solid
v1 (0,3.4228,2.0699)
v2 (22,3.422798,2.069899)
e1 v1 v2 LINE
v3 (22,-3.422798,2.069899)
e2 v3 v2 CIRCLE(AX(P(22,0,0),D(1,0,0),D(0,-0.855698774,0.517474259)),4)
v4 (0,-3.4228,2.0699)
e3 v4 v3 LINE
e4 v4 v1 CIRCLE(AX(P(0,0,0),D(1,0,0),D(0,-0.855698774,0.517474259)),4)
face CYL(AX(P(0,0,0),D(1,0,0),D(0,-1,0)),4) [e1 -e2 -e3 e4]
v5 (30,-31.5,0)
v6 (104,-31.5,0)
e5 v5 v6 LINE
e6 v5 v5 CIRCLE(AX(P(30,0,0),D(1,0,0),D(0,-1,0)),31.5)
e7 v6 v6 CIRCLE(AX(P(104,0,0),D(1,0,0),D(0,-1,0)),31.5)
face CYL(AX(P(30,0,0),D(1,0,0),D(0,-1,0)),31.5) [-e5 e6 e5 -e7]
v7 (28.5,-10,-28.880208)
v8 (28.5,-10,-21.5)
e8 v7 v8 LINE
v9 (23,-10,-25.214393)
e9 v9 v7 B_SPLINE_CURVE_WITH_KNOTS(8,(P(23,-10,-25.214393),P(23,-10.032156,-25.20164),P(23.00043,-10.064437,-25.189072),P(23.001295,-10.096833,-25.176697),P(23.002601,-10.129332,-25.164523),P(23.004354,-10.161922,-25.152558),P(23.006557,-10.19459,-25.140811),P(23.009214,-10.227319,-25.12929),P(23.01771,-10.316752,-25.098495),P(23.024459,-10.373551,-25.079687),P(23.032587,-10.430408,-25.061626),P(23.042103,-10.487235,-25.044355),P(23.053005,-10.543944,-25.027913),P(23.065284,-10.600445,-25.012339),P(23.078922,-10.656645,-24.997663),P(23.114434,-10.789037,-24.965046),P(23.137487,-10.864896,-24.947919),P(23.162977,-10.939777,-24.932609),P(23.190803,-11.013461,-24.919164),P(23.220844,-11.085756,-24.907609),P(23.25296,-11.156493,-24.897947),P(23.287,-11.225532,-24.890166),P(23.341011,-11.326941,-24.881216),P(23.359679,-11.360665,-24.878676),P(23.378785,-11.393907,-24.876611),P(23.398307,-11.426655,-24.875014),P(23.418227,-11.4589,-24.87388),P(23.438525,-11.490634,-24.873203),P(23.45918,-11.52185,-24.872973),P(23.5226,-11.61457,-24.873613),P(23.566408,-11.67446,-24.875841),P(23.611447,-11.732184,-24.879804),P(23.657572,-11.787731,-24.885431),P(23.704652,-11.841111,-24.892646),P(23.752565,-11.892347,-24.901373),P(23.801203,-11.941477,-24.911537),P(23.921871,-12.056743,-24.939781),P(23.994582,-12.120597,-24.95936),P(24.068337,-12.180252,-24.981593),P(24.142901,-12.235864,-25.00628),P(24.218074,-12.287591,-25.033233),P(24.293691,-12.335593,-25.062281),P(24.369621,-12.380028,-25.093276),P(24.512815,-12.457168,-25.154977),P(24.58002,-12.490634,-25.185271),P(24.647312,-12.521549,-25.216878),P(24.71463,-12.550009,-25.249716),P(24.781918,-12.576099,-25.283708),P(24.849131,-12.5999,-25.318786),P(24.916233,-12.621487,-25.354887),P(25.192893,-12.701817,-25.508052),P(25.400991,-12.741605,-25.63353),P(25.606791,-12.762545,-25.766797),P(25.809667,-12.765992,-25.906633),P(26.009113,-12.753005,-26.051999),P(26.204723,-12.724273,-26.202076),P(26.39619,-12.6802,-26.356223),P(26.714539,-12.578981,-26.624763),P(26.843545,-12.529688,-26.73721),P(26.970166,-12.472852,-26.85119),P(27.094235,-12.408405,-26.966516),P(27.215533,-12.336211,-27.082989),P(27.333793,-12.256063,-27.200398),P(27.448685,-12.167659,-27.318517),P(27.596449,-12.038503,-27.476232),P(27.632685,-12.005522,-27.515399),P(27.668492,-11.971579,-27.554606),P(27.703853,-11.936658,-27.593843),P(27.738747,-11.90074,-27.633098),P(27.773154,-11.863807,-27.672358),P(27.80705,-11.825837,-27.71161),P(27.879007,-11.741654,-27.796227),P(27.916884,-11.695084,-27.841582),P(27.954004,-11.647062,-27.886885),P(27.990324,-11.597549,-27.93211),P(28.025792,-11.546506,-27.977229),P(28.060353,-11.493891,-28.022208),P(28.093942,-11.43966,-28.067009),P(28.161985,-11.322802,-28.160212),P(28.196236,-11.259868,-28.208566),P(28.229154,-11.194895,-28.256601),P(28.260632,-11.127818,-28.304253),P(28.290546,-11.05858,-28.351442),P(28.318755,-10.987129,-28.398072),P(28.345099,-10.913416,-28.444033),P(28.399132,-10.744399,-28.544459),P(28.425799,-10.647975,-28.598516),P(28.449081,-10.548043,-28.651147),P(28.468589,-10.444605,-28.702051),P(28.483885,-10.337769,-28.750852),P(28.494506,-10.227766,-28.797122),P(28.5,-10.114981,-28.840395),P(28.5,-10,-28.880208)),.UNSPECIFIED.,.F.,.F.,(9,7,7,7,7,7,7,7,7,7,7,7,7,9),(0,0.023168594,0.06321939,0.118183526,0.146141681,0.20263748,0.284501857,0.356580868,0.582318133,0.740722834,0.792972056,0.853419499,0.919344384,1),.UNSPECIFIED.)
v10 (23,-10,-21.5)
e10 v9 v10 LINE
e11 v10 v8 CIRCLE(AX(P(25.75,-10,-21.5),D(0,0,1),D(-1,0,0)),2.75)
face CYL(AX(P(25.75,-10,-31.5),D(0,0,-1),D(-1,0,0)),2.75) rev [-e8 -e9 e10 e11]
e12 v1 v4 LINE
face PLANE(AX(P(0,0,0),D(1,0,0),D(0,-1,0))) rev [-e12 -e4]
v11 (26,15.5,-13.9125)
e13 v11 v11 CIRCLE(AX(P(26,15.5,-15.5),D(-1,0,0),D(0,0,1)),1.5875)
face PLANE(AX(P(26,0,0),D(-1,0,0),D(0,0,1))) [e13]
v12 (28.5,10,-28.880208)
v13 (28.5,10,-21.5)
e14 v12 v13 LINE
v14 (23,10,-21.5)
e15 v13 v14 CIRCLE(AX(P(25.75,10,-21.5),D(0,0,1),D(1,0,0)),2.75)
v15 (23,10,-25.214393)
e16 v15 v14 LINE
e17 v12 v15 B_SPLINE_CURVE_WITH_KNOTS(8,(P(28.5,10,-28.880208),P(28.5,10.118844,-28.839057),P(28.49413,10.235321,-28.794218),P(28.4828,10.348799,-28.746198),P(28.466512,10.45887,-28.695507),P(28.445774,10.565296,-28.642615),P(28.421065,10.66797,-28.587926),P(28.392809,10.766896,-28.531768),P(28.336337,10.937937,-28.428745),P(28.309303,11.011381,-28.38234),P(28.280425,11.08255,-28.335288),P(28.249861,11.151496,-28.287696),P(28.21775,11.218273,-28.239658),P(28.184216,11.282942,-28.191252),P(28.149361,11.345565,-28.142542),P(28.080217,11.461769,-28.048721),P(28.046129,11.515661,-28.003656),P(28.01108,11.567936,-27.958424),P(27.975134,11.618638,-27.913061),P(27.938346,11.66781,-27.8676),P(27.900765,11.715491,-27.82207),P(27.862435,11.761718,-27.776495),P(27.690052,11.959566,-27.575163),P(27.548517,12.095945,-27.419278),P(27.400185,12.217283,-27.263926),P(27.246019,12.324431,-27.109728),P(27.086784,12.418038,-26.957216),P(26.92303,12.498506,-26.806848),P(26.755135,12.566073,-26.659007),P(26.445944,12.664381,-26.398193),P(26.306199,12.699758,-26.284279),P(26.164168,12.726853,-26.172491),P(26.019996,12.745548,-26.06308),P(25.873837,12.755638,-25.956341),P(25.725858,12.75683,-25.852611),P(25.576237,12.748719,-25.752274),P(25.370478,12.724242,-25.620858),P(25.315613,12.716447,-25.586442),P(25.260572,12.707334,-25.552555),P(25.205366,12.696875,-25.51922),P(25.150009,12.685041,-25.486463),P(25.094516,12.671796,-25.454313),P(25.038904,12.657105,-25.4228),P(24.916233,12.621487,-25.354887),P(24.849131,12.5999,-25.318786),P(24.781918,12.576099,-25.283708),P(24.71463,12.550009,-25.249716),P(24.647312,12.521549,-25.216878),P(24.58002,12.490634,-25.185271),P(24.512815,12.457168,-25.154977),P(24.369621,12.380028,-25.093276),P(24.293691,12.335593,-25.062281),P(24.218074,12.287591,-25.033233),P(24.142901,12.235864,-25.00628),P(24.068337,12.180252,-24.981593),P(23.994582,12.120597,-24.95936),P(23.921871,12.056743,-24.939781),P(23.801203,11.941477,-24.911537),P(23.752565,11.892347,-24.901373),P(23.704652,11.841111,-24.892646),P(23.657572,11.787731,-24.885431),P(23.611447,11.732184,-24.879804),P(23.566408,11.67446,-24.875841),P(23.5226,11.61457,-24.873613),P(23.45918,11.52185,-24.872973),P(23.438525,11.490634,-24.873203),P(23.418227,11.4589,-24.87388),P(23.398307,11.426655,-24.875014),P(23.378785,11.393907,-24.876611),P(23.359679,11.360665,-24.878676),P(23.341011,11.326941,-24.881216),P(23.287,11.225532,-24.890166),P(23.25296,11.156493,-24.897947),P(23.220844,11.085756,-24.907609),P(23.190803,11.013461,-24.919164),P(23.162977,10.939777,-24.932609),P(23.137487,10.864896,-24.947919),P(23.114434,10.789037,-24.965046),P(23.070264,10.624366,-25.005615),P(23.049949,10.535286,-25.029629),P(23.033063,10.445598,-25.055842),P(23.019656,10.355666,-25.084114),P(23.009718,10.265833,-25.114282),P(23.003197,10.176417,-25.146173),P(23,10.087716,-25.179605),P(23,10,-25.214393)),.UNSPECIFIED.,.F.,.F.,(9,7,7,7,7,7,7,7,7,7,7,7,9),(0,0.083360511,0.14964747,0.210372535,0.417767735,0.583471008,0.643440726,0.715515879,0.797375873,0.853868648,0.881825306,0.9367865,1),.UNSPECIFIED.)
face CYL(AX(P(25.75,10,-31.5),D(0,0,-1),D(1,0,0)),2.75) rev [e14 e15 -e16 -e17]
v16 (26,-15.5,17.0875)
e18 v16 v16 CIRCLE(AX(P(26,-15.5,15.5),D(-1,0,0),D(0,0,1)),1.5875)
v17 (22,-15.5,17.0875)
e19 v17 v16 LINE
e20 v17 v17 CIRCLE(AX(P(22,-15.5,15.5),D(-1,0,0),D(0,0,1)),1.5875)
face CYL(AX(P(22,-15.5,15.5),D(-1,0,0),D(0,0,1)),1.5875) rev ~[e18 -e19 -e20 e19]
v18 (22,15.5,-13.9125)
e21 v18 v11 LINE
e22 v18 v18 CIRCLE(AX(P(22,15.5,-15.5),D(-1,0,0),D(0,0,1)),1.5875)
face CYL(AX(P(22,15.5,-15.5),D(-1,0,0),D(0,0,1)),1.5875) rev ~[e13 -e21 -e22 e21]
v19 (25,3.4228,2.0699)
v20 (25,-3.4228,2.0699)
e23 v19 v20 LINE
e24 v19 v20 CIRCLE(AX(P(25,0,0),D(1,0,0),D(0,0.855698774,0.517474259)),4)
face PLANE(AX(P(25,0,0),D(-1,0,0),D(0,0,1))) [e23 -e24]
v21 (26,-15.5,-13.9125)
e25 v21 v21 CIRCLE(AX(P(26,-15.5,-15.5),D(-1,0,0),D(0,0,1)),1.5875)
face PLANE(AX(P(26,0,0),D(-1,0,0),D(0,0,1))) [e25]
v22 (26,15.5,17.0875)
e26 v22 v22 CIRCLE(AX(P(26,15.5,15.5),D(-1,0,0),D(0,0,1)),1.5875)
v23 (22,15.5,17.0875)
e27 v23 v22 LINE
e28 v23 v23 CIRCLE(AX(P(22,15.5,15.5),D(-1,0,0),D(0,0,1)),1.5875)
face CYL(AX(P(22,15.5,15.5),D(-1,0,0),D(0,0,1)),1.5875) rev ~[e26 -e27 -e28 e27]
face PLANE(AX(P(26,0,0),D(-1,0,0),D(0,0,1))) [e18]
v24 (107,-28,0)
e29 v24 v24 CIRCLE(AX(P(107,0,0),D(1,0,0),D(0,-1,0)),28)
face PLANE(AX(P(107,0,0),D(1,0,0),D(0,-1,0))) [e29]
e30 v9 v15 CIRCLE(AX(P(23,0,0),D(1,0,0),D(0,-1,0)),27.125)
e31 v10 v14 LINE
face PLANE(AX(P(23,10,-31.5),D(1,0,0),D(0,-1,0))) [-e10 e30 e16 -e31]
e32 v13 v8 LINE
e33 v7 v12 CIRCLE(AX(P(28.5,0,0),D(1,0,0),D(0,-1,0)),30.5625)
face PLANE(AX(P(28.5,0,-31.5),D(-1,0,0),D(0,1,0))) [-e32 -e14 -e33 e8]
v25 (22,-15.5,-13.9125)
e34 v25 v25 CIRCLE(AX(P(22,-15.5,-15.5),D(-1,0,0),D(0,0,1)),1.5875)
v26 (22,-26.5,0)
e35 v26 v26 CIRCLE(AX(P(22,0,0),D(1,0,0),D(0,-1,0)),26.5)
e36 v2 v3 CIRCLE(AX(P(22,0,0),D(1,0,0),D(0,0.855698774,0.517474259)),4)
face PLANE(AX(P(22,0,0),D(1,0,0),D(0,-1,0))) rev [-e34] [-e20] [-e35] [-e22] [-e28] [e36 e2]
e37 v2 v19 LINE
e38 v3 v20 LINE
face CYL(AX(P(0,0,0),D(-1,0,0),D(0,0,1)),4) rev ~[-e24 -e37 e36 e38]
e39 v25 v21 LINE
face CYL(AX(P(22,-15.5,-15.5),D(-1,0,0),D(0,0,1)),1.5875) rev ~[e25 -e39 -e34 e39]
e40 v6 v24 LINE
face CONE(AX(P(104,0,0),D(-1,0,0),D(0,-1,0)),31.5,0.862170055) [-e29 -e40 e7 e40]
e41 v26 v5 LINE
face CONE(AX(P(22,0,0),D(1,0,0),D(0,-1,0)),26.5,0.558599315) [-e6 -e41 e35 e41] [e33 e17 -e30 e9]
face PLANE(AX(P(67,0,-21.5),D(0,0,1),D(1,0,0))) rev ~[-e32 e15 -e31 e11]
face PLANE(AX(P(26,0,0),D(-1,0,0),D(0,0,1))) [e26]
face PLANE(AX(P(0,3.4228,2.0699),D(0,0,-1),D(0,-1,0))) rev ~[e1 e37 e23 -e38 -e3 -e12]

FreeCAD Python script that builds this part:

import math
import FreeCAD as App
import Part
import Sketcher
from FreeCAD import Vector
Q = App.Units.Quantity

doc = App.newDocument("Part")
body = doc.addObject("PartDesign::Body", "Body")

sketch1 = body.newObject("Sketcher::SketchObject", "Sketch")
sketch1.AttachmentSupport = (doc.getObject("XY_Plane"), [""])
sketch1.MapMode = "FlatFace"
sketch1.addGeometry(Part.LineSegment(Vector(107, 0, 0), Vector(0, 0, 0)), False)
sketch1.addGeometry(Part.LineSegment(Vector(0, 0, 0), Vector(0, -4, 0)), False)
sketch1.addGeometry(Part.LineSegment(Vector(0, -4, 0), Vector(22, -4, 0)), False)
sketch1.addGeometry(Part.LineSegment(Vector(22, -4, 0), Vector(22, -26.5, 0)), False)
sketch1.addGeometry(Part.LineSegment(Vector(22, -26.5, 0), Vector(30, -31.5, 0)), False)
sketch1.addGeometry(Part.LineSegment(Vector(30, -31.5, 0), Vector(104, -31.5, 0)), False)
sketch1.addGeometry(Part.LineSegment(Vector(104, -31.5, 0), Vector(107, -28, 0)), False)
sketch1.addGeometry(Part.LineSegment(Vector(107, -28, 0), Vector(107, 0, 0)), False)
sketch1.addConstraint(Sketcher.Constraint("Coincident", 0, 2, 1, 1))
sketch1.addConstraint(Sketcher.Constraint("Coincident", 1, 2, 2, 1))
sketch1.addConstraint(Sketcher.Constraint("Coincident", 2, 2, 3, 1))
sketch1.addConstraint(Sketcher.Constraint("Coincident", 3, 2, 4, 1))
sketch1.addConstraint(Sketcher.Constraint("Coincident", 4, 2, 5, 1))
sketch1.addConstraint(Sketcher.Constraint("Coincident", 5, 2, 6, 1))
sketch1.addConstraint(Sketcher.Constraint("Coincident", 6, 2, 7, 1))
sketch1.addConstraint(Sketcher.Constraint("Coincident", 7, 2, 0, 1))
sketch1.addConstraint(Sketcher.Constraint("Horizontal", 0))
sketch1.addConstraint(Sketcher.Constraint("Vertical", 1))
sketch1.addConstraint(Sketcher.Constraint("Horizontal", 2))
sketch1.addConstraint(Sketcher.Constraint("Vertical", 3))
sketch1.addConstraint(Sketcher.Constraint("Horizontal", 5))
sketch1.addConstraint(Sketcher.Constraint("Vertical", 7))
sketch1.addConstraint(Sketcher.Constraint("Coincident", 0, 2, -1, 1))
sketch1.addConstraint(Sketcher.Constraint("DistanceX", 2, 1, 2, 2, Q("22 mm")))
sketch1.addConstraint(Sketcher.Constraint("DistanceX", 5, 1, 5, 2, Q("74 mm")))
sketch1.addConstraint(Sketcher.Constraint("DistanceY", 1, 2, 1, 1, Q("4 mm")))
sketch1.addConstraint(Sketcher.Constraint("DistanceY", 7, 1, 7, 2, Q("28 mm")))
sketch1.addConstraint(Sketcher.Constraint("DistanceY", 3, 2, 3, 1, Q("22.5 mm")))
sketch1.addConstraint(Sketcher.Constraint("DistanceX", 3, 2, 4, 2, Q("8 mm")))
sketch1.addConstraint(Sketcher.Constraint("DistanceX", 3, 2, 6, 2, Q("85 mm")))
sketch1.addConstraint(Sketcher.Constraint("DistanceY", 4, 2, -1, 1, Q("31.5 mm")))
revolution = body.newObject("PartDesign::Revolution", "Revolution")
revolution.Profile = sketch1
revolution.ReferenceAxis = (sketch1, ["H_Axis"])
revolution.Angle = 360

sketch2 = body.newObject("Sketcher::SketchObject", "Sketch001")
sketch2.AttachmentSupport = (doc.getObject("YZ_Plane"), [""])
sketch2.MapMode = "FlatFace"
sketch2.addGeometry(Part.ArcOfCircle(Part.Circle(Vector(0, 0, 0), Vector(0, 0, 1), 4), math.radians(31.162982), math.radians(148.837018)), False)
sketch2.addGeometry(Part.LineSegment(Vector(-3.4228, 2.0699, 0), Vector(3.4228, 2.0699, 0)), False)
sketch2.addConstraint(Sketcher.Constraint("Coincident", 0, 1, 1, 2))
sketch2.addConstraint(Sketcher.Constraint("Coincident", 1, 1, 0, 2))
sketch2.addConstraint(Sketcher.Constraint("Horizontal", 1))
sketch2.addConstraint(Sketcher.Constraint("Coincident", 0, 3, -1, 1))
sketch2.addConstraint(Sketcher.Constraint("Radius", 0, Q("4 mm")))
sketch2.addConstraint(Sketcher.Constraint("DistanceY", -1, 1, 0, 1, Q("2.07 mm")))
pocket1 = body.newObject("PartDesign::Pocket", "Pocket")
pocket1.Profile = sketch2
pocket1.Length = 25
pocket1.Reversed = True

sketch3 = body.newObject("Sketcher::SketchObject", "Sketch002")
sketch3.AttachmentSupport = (doc.getObject("YZ_Plane"), [""])
sketch3.MapMode = "FlatFace"
sketch3.AttachmentOffset = App.Placement(Vector(0, 0, 22), App.Rotation())
sketch3.addGeometry(Part.Circle(Vector(15.5, 15.5, 0), Vector(0, 0, 1), 1.5875), False)
sketch3.addGeometry(Part.Circle(Vector(-15.5, 15.5, 0), Vector(0, 0, 1), 1.5875), False)
sketch3.addGeometry(Part.Circle(Vector(15.5, -15.5, 0), Vector(0, 0, 1), 1.5875), False)
sketch3.addGeometry(Part.Circle(Vector(-15.5, -15.5, 0), Vector(0, 0, 1), 1.5875), False)
sketch3.addConstraint(Sketcher.Constraint("Equal", 0, 1))
sketch3.addConstraint(Sketcher.Constraint("Equal", 1, 2))
sketch3.addConstraint(Sketcher.Constraint("Equal", 2, 3))
sketch3.addConstraint(Sketcher.Constraint("Symmetric", 1, 3, 2, 3, -1, 1))
sketch3.addConstraint(Sketcher.Constraint("Symmetric", 0, 3, 3, 3, -1, 1))
sketch3.addConstraint(Sketcher.Constraint("Symmetric", 0, 3, 1, 3, -2))
sketch3.addConstraint(Sketcher.Constraint("Diameter", 0, Q("3.175 mm")))
sketch3.addConstraint(Sketcher.Constraint("DistanceX", 1, 3, 0, 3, Q("31 mm")))
sketch3.addConstraint(Sketcher.Constraint("DistanceY", 2, 3, 0, 3, Q("31 mm")))
pocket2 = body.newObject("PartDesign::Pocket", "Pocket001")
pocket2.Profile = sketch3
pocket2.Length = 4
pocket2.Reversed = True

sketch4 = body.newObject("Sketcher::SketchObject", "Sketch003")
sketch4.AttachmentSupport = (doc.getObject("XY_Plane"), [""])
sketch4.MapMode = "FlatFace"
sketch4.AttachmentOffset = App.Placement(Vector(0, 0, -31.5), App.Rotation())
sketch4.addGeometry(Part.ArcOfCircle(Part.Circle(Vector(25.75, 10, 0), Vector(0, 0, 1), 2.75), math.radians(0), math.radians(180)), False)
sketch4.addGeometry(Part.LineSegment(Vector(23, 10, 0), Vector(23, -10, 0)), False)
sketch4.addGeometry(Part.ArcOfCircle(Part.Circle(Vector(25.75, -10, 0), Vector(0, 0, 1), 2.75), math.radians(180), math.radians(360)), False)
sketch4.addGeometry(Part.LineSegment(Vector(28.5, -10, 0), Vector(28.5, 10, 0)), False)
sketch4.addConstraint(Sketcher.Constraint("Tangent", 0, 2, 1, 1))
sketch4.addConstraint(Sketcher.Constraint("Tangent", 1, 2, 2, 1))
sketch4.addConstraint(Sketcher.Constraint("Tangent", 2, 2, 3, 1))
sketch4.addConstraint(Sketcher.Constraint("Tangent", 3, 2, 0, 1))
sketch4.addConstraint(Sketcher.Constraint("Vertical", 1))
sketch4.addConstraint(Sketcher.Constraint("Vertical", 3))
sketch4.addConstraint(Sketcher.Constraint("DistanceY", 1, 2, 1, 1, Q("20 mm")))
sketch4.addConstraint(Sketcher.Constraint("Radius", 0, Q("2.75 mm")))
sketch4.addConstraint(Sketcher.Constraint("DistanceY", -1, 1, 0, 3, Q("10 mm")))
sketch4.addConstraint(Sketcher.Constraint("DistanceX", -1, 1, 0, 2, Q("23 mm")))
pocket3 = body.newObject("PartDesign::Pocket", "Pocket002")
pocket3.Profile = sketch4
pocket3.Length = 10
pocket3.Reversed = True

doc.recompute()
